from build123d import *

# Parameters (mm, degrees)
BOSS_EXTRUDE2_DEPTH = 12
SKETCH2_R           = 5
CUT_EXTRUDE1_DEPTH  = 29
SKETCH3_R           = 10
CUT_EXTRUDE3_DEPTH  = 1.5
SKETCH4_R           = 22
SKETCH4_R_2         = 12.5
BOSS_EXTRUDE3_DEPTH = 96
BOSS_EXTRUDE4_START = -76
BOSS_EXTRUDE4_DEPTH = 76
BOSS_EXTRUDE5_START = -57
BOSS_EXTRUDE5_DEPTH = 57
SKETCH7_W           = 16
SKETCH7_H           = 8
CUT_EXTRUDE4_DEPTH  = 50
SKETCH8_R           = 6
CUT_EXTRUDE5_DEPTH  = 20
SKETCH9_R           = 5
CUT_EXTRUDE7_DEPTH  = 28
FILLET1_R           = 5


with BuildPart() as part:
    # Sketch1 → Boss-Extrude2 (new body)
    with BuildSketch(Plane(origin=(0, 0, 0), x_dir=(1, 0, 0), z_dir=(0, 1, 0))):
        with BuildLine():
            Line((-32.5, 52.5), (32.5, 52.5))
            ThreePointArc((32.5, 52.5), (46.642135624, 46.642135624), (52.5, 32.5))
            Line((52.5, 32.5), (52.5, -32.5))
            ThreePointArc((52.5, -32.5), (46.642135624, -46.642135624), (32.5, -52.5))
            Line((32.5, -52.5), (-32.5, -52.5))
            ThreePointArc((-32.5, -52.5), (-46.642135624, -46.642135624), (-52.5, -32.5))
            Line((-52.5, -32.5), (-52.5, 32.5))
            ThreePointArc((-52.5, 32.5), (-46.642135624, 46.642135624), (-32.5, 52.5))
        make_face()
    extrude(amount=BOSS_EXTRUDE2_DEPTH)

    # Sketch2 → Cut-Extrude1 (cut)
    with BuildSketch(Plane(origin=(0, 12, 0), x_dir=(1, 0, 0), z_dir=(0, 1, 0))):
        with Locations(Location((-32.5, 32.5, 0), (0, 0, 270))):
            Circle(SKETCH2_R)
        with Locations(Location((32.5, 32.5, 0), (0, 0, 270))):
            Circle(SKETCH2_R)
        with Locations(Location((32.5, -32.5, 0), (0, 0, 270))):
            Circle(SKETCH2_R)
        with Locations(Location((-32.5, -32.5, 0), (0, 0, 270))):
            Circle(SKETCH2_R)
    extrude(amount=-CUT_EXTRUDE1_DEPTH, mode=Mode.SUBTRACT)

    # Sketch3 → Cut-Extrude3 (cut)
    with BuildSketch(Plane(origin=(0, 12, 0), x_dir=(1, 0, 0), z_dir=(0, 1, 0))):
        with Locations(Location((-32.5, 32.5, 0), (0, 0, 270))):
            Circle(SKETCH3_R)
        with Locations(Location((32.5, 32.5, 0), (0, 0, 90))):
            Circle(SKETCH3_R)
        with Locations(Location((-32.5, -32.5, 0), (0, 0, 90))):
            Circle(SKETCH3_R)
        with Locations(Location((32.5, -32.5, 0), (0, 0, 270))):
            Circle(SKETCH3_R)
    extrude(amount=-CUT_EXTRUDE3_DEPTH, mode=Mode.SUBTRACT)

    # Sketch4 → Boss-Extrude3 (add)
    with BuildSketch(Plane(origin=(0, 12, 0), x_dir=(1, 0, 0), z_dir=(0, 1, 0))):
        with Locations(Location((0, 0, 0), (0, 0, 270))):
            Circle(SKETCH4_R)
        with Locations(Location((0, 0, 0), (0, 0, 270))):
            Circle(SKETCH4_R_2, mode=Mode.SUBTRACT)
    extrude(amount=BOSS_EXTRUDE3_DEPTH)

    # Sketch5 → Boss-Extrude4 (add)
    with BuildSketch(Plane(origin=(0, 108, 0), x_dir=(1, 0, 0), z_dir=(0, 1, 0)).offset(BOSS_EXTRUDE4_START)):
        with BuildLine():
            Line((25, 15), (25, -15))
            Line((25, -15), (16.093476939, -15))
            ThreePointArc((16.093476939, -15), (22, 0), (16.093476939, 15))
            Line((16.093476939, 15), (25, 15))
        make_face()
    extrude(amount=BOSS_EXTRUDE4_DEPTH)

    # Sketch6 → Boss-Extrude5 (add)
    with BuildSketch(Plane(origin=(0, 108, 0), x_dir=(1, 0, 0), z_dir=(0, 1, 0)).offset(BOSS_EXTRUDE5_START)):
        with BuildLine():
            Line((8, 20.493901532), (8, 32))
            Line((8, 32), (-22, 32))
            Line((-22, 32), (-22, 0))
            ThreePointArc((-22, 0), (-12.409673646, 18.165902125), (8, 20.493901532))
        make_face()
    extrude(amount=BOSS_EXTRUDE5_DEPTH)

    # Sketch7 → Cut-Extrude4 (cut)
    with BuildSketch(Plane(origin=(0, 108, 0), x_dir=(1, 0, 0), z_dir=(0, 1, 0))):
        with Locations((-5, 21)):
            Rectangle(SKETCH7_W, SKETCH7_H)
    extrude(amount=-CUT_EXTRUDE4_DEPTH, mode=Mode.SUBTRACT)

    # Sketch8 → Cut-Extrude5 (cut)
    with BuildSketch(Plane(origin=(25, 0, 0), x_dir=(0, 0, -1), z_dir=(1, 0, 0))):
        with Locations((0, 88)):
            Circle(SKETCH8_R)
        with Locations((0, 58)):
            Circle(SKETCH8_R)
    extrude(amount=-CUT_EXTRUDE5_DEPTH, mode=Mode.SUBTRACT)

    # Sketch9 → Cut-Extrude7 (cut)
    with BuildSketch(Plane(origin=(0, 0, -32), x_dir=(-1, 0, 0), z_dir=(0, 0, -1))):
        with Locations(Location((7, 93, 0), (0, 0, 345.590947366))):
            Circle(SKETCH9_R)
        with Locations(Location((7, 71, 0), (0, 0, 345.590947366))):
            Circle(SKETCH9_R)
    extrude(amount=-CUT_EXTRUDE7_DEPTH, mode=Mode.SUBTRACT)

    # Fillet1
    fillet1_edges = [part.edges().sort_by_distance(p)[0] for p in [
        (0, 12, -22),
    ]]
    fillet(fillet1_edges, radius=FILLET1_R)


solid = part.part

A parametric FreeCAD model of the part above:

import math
import FreeCAD as App
import Part
import Sketcher


def edges_at(feature, points):
    """Names of the edges that pass closest to the given points."""
    edges = feature.Shape.Edges
    near = lambda p: min(range(len(edges)), key=lambda i: edges[i].distToShape(Part.Vertex(*p))[0])
    return sorted({f"Edge{near(p) + 1}" for p in points})


def add_polygon(sketch, points):
    """Adds a closed chain of lines whose ends are joined by coincident constraints."""
    first, n = sketch.GeometryCount, len(points)
    for a, b in zip(points, points[1:] + points[:1]):
        sketch.addGeometry(Part.LineSegment(App.Vector(*a, 0), App.Vector(*b, 0)), False)
    for i in range(n):
        sketch.addConstraint(Sketcher.Constraint("Coincident", first + i, 2, first + (i + 1) % n, 1))

doc = App.newDocument("Part")
body = doc.addObject("PartDesign::Body", "Body")

# Sketch on XZ plane
sketch1 = body.newObject("Sketcher::SketchObject", "Sketch")
sketch1.AttachmentSupport = (doc.getObject("XZ_Plane"), [""])
sketch1.MapMode = "FlatFace"
sketch1.addGeometry(Part.LineSegment(App.Vector(32, -52, 0), App.Vector(-32, -52, 0)), False)
sketch1.addGeometry(Part.ArcOfCircle(Part.Circle(App.Vector(-33, -33, 0), App.Vector(0, 0, 1), 20), math.radians(180), math.radians(270)), False)
sketch1.addGeometry(Part.LineSegment(App.Vector(-52, -32, 0), App.Vector(-52, 32, 0)), False)
sketch1.addGeometry(Part.ArcOfCircle(Part.Circle(App.Vector(-33, 33, 0), App.Vector(0, 0, 1), 20), math.radians(90), math.radians(180)), False)
sketch1.addGeometry(Part.LineSegment(App.Vector(-32, 52, 0), App.Vector(32, 52, 0)), False)
sketch1.addGeometry(Part.ArcOfCircle(Part.Circle(App.Vector(33, 33, 0), App.Vector(0, 0, 1), 20), math.radians(0), math.radians(90)), False)
sketch1.addGeometry(Part.LineSegment(App.Vector(52, 32, 0), App.Vector(52, -32, 0)), False)
sketch1.addGeometry(Part.ArcOfCircle(Part.Circle(App.Vector(33, -33, 0), App.Vector(0, 0, 1), 20), math.radians(-90), math.radians(0)), False)
sketch1.addConstraint(Sketcher.Constraint("Tangent", 0, 2, 1, 2))
sketch1.addConstraint(Sketcher.Constraint("Tangent", 1, 1, 2, 1))
sketch1.addConstraint(Sketcher.Constraint("Tangent", 2, 2, 3, 2))
sketch1.addConstraint(Sketcher.Constraint("Tangent", 3, 1, 4, 1))
sketch1.addConstraint(Sketcher.Constraint("Tangent", 4, 2, 5, 2))
sketch1.addConstraint(Sketcher.Constraint("Tangent", 5, 1, 6, 1))
sketch1.addConstraint(Sketcher.Constraint("Tangent", 6, 2, 7, 2))
sketch1.addConstraint(Sketcher.Constraint("Tangent", 7, 1, 0, 1))
sketch1.addConstraint(Sketcher.Constraint("Horizontal", 0))
sketch1.addConstraint(Sketcher.Constraint("Vertical", 2))
sketch1.addConstraint(Sketcher.Constraint("Horizontal", 4))
sketch1.addConstraint(Sketcher.Constraint("Vertical", 6))
sketch1.addConstraint(Sketcher.Constraint("Equal", 1, 3))
sketch1.addConstraint(Sketcher.Constraint("Equal", 3, 5))
sketch1.addConstraint(Sketcher.Constraint("Equal", 5, 7))
sketch1.addConstraint(Sketcher.Constraint("Symmetric", 1, 3, 5, 3, -1, 1))
sketch1.addConstraint(Sketcher.Constraint("Equal", 4, 2))
sketch1.addConstraint(Sketcher.Constraint("Radius", 1, 20.0))
sketch1.addConstraint(Sketcher.Constraint("DistanceX", 0, 2, 0, 1, 65.0))
pad1 = body.newObject("PartDesign::Pad", "Pad")
pad1.Profile = sketch1
pad1.Length = 12
pad1.Reversed = True

# Sketch on XZ plane
sketch2 = body.newObject("Sketcher::SketchObject", "Sketch001")
sketch2.AttachmentSupport = (doc.getObject("XZ_Plane"), [""])
sketch2.MapMode = "FlatFace"
sketch2.AttachmentOffset = App.Placement(App.Vector(0, 0, -12), App.Rotation())
sketch2.addGeometry(Part.Circle(App.Vector(-32, -32, 0), App.Vector(0, 0, 1), 5), False)
sketch2.addGeometry(Part.Circle(App.Vector(32, -32, 0), App.Vector(0, 0, 1), 5), False)
sketch2.addGeometry(Part.Circle(App.Vector(32, 32, 0), App.Vector(0, 0, 1), 5), False)
sketch2.addGeometry(Part.Circle(App.Vector(-32, 32, 0), App.Vector(0, 0, 1), 5), False)
sketch2.addConstraint(Sketcher.Constraint("Equal", 0, 1))
sketch2.addConstraint(Sketcher.Constraint("Equal", 1, 2))
sketch2.addConstraint(Sketcher.Constraint("Equal", 2, 3))
sketch2.addConstraint(Sketcher.Constraint("Symmetric", 0, 3, 2, 3, -1, 1))
sketch2.addConstraint(Sketcher.Constraint("Symmetric", 1, 3, 3, 3, -1, 1))
sketch2.addConstraint(Sketcher.Constraint("Symmetric", 0, 3, 1, 3, -2))
sketch2.addConstraint(Sketcher.Constraint("Diameter", 0, 10.0))
sketch2.addConstraint(Sketcher.Constraint("DistanceX", 0, 3, 1, 3, 65.0))
sketch2.addConstraint(Sketcher.Constraint("DistanceY", 1, 3, 2, 3, 65.0))
pocket1 = body.newObject("PartDesign::Pocket", "Pocket")
pocket1.Profile = sketch2
pocket1.Length = 29
pocket1.Reversed = True

# Sketch on XZ plane
sketch3 = body.newObject("Sketcher::SketchObject", "Sketch002")
sketch3.AttachmentSupport = (doc.getObject("XZ_Plane"), [""])
sketch3.MapMode = "FlatFace"
sketch3.AttachmentOffset = App.Placement(App.Vector(0, 0, -12), App.Rotation())
sketch3.addGeometry(Part.Circle(App.Vector(-32, -32, 0), App.Vector(0, 0, 1), 10), False)
sketch3.addGeometry(Part.Circle(App.Vector(32, -32, 0), App.Vector(0, 0, 1), 10), False)
sketch3.addGeometry(Part.Circle(App.Vector(-32, 32, 0), App.Vector(0, 0, 1), 10), False)
sketch3.addGeometry(Part.Circle(App.Vector(32, 32, 0), App.Vector(0, 0, 1), 10), False)
sketch3.addConstraint(Sketcher.Constraint("Equal", 0, 1))
sketch3.addConstraint(Sketcher.Constraint("Equal", 1, 2))
sketch3.addConstraint(Sketcher.Constraint("Equal", 2, 3))
sketch3.addConstraint(Sketcher.Constraint("Symmetric", 1, 3, 2, 3, -1, 1))
sketch3.addConstraint(Sketcher.Constraint("Symmetric", 0, 3, 3, 3, -1, 1))
sketch3.addConstraint(Sketcher.Constraint("Symmetric", 0, 3, 1, 3, -2))
sketch3.addConstraint(Sketcher.Constraint("Diameter", 0, 20.0))
sketch3.addConstraint(Sketcher.Constraint("DistanceX", 0, 3, 1, 3, 65.0))
sketch3.addConstraint(Sketcher.Constraint("DistanceY", 0, 3, 2, 3, 65.0))
pocket2 = body.newObject("PartDesign::Pocket", "Pocket001")
pocket2.Profile = sketch3
pocket2.Length = 1.5
pocket2.Reversed = True

# Sketch on XZ plane
sketch4 = body.newObject("Sketcher::SketchObject", "Sketch003")
sketch4.AttachmentSupport = (doc.getObject("XZ_Plane"), [""])
sketch4.MapMode = "FlatFace"
sketch4.AttachmentOffset = App.Placement(App.Vector(0, 0, -12), App.Rotation())
sketch4.addGeometry(Part.Circle(App.Vector(0, 0, 0), App.Vector(0, 0, 1), 22), False)
sketch4.addGeometry(Part.Circle(App.Vector(0, 0, 0), App.Vector(0, 0, 1), 12), False)
sketch4.addConstraint(Sketcher.Constraint("Coincident", 0, 3, -1, 1))
sketch4.addConstraint(Sketcher.Constraint("Coincident", 1, 3, -1, 1))
sketch4.addConstraint(Sketcher.Constraint("Diameter", 0, 44.0))
sketch4.addConstraint(Sketcher.Constraint("Diameter", 1, 25.0))
pad2 = body.newObject("PartDesign::Pad", "Pad001")
pad2.Profile = sketch4
pad2.Length = 96
pad2.Reversed = True

# Sketch on XZ plane
sketch5 = body.newObject("Sketcher::SketchObject", "Sketch004")
sketch5.AttachmentSupport = (doc.getObject("XZ_Plane"), [""])
sketch5.MapMode = "FlatFace"
sketch5.AttachmentOffset = App.Placement(App.Vector(0, 0, -32), App.Rotation())
sketch5.addGeometry(Part.LineSegment(App.Vector(25, 15, 0), App.Vector(25, -15, 0)), False)
sketch5.addGeometry(Part.LineSegment(App.Vector(25, -15, 0), App.Vector(16, -15, 0)), False)
sketch5.addGeometry(Part.ArcOfCircle(Part.Circle(App.Vector(0, 0, 0), App.Vector(0, 0, 1), 22), math.radians(-43), math.radians(43)), False)
sketch5.addGeometry(Part.LineSegment(App.Vector(16, 15, 0), App.Vector(25, 15, 0)), False)
sketch5.addConstraint(Sketcher.Constraint("Coincident", 0, 2, 1, 1))
sketch5.addConstraint(Sketcher.Constraint("Coincident", 1, 2, 2, 1))
sketch5.addConstraint(Sketcher.Constraint("Coincident", 2, 2, 3, 1))
sketch5.addConstraint(Sketcher.Constraint("Coincident", 3, 2, 0, 1))
sketch5.addConstraint(Sketcher.Constraint("Vertical", 0))
sketch5.addConstraint(Sketcher.Constraint("Horizontal", 1))
sketch5.addConstraint(Sketcher.Constraint("Horizontal", 3))
sketch5.addConstraint(Sketcher.Constraint("Coincident", 2, 3, -1, 1))
sketch5.addConstraint(Sketcher.Constraint("Vertical", 1, 2, 2, 2))
sketch5.addConstraint(Sketcher.Constraint("Radius", 2, 22.0))
sketch5.addConstraint(Sketcher.Constraint("DistanceY", 0, 2, 0, 1, 30.0))
sketch5.addConstraint(Sketcher.Constraint("DistanceX", -1, 1, 0, 2, 25.0))
pad3 = body.newObject("PartDesign::Pad", "Pad002")
pad3.Profile = sketch5
pad3.Length = 76
pad3.Reversed = True

# Sketch on XZ plane
sketch6 = body.newObject("Sketcher::SketchObject", "Sketch005")
sketch6.AttachmentSupport = (doc.getObject("XZ_Plane"), [""])
sketch6.MapMode = "FlatFace"
sketch6.AttachmentOffset = App.Placement(App.Vector(0, 0, -51), App.Rotation())
sketch6.addGeometry(Part.LineSegment(App.Vector(8, -20, 0), App.Vector(8, -32, 0)), False)
sketch6.addGeometry(Part.LineSegment(App.Vector(8, -32, 0), App.Vector(-22, -32, 0)), False)
sketch6.addGeometry(Part.LineSegment(App.Vector(-22, -32, 0), App.Vector(-22, 0, 0)), False)
sketch6.addGeometry(Part.ArcOfCircle(Part.Circle(App.Vector(0, 0, 0), App.Vector(0, 0, 1), 22), math.radians(180), math.radians(291)), False)
sketch6.addConstraint(Sketcher.Constraint("Coincident", 0, 2, 1, 1))
sketch6.addConstraint(Sketcher.Constraint("Coincident", 1, 2, 2, 1))
sketch6.addConstraint(Sketcher.Constraint("Tangent", 2, 2, 3, 1))
sketch6.addConstraint(Sketcher.Constraint("Coincident", 3, 2, 0, 1))
sketch6.addConstraint(Sketcher.Constraint("Vertical", 0))
sketch6.addConstraint(Sketcher.Constraint("Horizontal", 1))
sketch6.addConstraint(Sketcher.Constraint("Vertical", 2))
sketch6.addConstraint(Sketcher.Constraint("Coincident", 3, 3, -1, 1))
sketch6.addConstraint(Sketcher.Constraint("Radius", 3, 22.0))
sketch6.addConstraint(Sketcher.Constraint("DistanceX", 1, 2, 1, 1, 30.0))
sketch6.addConstraint(Sketcher.Constraint("DistanceY", 2, 1, 2, 2, 32.0))
pad4 = body.newObject("PartDesign::Pad", "Pad003")
pad4.Profile = sketch6
pad4.Length = 57
pad4.Reversed = True

# Sketch on XZ plane
sketch7 = body.newObject("Sketcher::SketchObject", "Sketch006")
sketch7.AttachmentSupport = (doc.getObject("XZ_Plane"), [""])
sketch7.MapMode = "FlatFace"
sketch7.AttachmentOffset = App.Placement(App.Vector(0, 0, -108), App.Rotation())
add_polygon(sketch7, [(-13, -25), (-13, -17), (3, -17), (3, -25)])  # lines 0-3
sketch7.addConstraint(Sketcher.Constraint("Vertical", 0))
sketch7.addConstraint(Sketcher.Constraint("Horizontal", 1))
sketch7.addConstraint(Sketcher.Constraint("Vertical", 2))
sketch7.addConstraint(Sketcher.Constraint("Horizontal", 3))
sketch7.addConstraint(Sketcher.Constraint("DistanceX", 1, 1, 1, 2, 16.0))
sketch7.addConstraint(Sketcher.Constraint("DistanceY", 0, 1, 0, 2, 8.0))
sketch7.addConstraint(Sketcher.Constraint("DistanceX", 0, 2, -1, 1, 13.0))
sketch7.addConstraint(Sketcher.Constraint("DistanceY", 0, 2, -1, 1, 17.0))
pocket3 = body.newObject("PartDesign::Pocket", "Pocket002")
pocket3.Profile = sketch7
pocket3.Length = 50
pocket3.Reversed = True

# Sketch on YZ plane
sketch8 = body.newObject("Sketcher::SketchObject", "Sketch007")
sketch8.AttachmentSupport = (doc.getObject("YZ_Plane"), [""])
sketch8.MapMode = "FlatFace"
sketch8.AttachmentOffset = App.Placement(App.Vector(0, 0, 25), App.Rotation())
sketch8.addGeometry(Part.Circle(App.Vector(88, 0, 0), App.Vector(0, 0, 1), 6), False)
sketch8.addGeometry(Part.Circle(App.Vector(58, 0, 0), App.Vector(0, 0, 1), 6), False)
sketch8.addConstraint(Sketcher.Constraint("Equal", 0, 1))
sketch8.addConstraint(Sketcher.Constraint("PointOnObject", 0, 3, -1))
sketch8.addConstraint(Sketcher.Constraint("PointOnObject", 1, 3, -1))
sketch8.addConstraint(Sketcher.Constraint("Diameter", 0, 12.0))
sketch8.addConstraint(Sketcher.Constraint("DistanceX", -1, 1, 0, 3, 88.0))
sketch8.addConstraint(Sketcher.Constraint("DistanceX", -1, 1, 1, 3, 58.0))
pocket4 = body.newObject("PartDesign::Pocket", "Pocket003")
pocket4.Profile = sketch8
pocket4.Length = 20

# Sketch on XY plane
sketch9 = body.newObject("Sketcher::SketchObject", "Sketch008")
sketch9.AttachmentSupport = (doc.getObject("XY_Plane"), [""])
sketch9.MapMode = "FlatFace"
sketch9.AttachmentOffset = App.Placement(App.Vector(0, 0, -32), App.Rotation())
sketch9.addGeometry(Part.Circle(App.Vector(-7, 93, 0), App.Vector(0, 0, 1), 5), False)
sketch9.addGeometry(Part.Circle(App.Vector(-7, 71, 0), App.Vector(0, 0, 1), 5), False)
sketch9.addConstraint(Sketcher.Constraint("Equal", 0, 1))
sketch9.addConstraint(Sketcher.Constraint("Vertical", 0, 3, 1, 3))
sketch9.addConstraint(Sketcher.Constraint("Diameter", 0, 10.0))
sketch9.addConstraint(Sketcher.Constraint("DistanceX", 0, 3, -1, 1, 7.0))
sketch9.addConstraint(Sketcher.Constraint("DistanceY", -1, 1, 0, 3, 93.0))
sketch9.addConstraint(Sketcher.Constraint("DistanceY", -1, 1, 1, 3, 71.0))
pocket5 = body.newObject("PartDesign::Pocket", "Pocket004")
pocket5.Profile = sketch9
pocket5.Length = 28
pocket5.Reversed = True
doc.recompute()

fillet = body.newObject("PartDesign::Fillet", "Fillet")
fillet.Base = (pocket5, edges_at(pocket5, [(0, 12, -22)]))
fillet.Radius = 5

doc.recompute()
